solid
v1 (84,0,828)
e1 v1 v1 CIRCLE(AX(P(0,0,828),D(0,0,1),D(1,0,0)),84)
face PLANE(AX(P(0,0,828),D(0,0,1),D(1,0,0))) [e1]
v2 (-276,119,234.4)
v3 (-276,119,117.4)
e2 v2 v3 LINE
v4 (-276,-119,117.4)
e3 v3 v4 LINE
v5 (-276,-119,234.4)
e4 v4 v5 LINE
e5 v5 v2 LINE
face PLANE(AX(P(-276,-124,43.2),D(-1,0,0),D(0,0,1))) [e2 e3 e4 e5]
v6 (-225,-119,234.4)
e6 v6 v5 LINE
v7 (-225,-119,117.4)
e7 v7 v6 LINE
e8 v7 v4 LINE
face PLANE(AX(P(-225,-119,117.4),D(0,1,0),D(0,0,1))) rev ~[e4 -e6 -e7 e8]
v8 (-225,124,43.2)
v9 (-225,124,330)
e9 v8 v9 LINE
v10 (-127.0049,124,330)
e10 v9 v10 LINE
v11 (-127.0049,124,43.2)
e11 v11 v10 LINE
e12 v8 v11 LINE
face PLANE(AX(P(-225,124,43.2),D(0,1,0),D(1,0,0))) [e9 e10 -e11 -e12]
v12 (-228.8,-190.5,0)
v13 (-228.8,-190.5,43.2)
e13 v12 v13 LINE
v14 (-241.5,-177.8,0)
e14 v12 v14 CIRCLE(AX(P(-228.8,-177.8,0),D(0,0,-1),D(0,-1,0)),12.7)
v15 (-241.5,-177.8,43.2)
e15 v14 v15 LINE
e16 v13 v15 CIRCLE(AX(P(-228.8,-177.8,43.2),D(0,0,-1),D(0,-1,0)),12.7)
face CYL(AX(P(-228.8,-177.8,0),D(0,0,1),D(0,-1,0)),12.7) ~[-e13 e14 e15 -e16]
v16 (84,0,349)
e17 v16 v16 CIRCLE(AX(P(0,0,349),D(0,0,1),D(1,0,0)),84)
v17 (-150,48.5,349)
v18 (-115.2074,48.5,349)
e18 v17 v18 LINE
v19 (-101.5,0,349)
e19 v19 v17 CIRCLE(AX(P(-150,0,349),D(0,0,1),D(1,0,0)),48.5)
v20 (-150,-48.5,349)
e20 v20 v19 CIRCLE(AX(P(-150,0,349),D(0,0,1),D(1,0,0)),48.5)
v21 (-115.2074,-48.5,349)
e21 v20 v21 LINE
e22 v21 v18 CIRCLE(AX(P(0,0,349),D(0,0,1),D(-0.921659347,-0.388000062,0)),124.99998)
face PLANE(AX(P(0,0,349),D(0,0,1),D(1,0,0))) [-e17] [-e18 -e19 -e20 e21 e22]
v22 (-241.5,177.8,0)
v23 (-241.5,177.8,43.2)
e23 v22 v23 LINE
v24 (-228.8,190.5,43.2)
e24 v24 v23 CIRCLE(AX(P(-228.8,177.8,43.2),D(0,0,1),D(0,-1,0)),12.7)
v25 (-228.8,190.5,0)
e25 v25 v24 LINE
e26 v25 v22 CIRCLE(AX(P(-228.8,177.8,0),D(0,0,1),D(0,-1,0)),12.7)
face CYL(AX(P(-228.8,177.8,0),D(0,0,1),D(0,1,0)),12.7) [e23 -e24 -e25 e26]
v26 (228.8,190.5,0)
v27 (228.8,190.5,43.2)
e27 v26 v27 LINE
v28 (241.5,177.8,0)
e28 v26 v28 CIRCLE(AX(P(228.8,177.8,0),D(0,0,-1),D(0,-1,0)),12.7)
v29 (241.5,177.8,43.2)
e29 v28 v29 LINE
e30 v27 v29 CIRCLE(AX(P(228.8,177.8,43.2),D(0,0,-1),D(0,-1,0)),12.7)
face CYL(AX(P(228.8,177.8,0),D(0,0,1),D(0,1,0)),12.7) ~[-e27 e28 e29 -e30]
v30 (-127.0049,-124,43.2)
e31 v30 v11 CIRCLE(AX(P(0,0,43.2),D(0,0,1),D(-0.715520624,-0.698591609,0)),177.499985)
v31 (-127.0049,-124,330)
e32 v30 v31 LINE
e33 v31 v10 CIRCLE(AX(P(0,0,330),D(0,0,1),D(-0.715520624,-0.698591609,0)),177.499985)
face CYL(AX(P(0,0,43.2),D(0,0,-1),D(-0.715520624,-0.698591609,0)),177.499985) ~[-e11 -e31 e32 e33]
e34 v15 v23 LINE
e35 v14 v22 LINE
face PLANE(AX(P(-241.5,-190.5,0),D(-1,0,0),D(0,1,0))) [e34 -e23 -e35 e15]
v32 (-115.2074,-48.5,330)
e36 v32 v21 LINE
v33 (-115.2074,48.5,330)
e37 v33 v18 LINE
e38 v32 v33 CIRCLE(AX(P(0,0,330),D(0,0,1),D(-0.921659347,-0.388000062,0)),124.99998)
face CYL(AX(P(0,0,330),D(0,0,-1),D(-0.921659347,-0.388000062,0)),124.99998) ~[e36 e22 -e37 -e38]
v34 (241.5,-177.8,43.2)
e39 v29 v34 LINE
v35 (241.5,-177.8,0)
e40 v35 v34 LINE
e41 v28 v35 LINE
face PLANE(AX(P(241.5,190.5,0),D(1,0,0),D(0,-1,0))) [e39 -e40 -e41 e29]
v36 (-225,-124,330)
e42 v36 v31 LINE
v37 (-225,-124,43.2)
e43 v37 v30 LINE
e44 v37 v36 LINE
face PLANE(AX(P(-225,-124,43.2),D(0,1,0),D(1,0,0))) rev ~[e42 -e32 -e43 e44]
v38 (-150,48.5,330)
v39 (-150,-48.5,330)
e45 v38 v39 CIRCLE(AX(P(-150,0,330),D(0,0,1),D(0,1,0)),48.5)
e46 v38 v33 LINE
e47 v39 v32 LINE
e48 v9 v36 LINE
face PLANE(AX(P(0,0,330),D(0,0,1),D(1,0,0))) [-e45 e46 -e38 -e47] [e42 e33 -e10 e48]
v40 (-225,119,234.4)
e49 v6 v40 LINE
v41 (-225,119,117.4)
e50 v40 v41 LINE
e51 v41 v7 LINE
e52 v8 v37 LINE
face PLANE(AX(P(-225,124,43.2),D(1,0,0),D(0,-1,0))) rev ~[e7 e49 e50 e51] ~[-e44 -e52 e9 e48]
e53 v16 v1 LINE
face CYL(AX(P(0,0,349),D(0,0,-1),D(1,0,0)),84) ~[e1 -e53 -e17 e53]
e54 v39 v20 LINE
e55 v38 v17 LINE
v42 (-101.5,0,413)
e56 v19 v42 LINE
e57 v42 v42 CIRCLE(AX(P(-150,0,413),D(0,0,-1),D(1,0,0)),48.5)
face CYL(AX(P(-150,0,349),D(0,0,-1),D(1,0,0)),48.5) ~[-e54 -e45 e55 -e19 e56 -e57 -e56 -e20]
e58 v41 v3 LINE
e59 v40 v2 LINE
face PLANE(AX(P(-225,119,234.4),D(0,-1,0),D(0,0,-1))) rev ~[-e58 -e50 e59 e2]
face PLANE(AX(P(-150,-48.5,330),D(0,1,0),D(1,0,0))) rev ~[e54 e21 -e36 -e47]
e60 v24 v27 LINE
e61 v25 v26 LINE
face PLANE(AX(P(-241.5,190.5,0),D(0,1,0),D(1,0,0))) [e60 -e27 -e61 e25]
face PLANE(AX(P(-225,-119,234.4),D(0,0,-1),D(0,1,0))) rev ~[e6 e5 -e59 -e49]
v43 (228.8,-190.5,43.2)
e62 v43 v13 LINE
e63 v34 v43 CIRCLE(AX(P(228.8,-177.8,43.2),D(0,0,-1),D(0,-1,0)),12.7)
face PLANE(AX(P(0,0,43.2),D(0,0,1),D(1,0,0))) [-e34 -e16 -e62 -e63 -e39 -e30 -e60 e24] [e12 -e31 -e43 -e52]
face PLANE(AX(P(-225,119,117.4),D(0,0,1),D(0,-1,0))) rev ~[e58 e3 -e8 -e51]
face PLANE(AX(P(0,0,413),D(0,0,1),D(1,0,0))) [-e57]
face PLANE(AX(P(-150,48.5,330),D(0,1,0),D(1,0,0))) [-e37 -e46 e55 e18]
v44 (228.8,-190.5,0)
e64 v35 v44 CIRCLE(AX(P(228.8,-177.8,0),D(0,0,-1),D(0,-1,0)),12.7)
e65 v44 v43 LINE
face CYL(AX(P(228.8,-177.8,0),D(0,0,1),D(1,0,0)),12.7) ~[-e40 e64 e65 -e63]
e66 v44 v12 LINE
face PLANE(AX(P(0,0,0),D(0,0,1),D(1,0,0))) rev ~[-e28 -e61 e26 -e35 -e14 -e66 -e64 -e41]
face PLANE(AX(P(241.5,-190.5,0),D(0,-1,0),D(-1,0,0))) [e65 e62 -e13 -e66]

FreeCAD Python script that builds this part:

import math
import FreeCAD as App
import Part
import Sketcher
from FreeCAD import Vector


def edges_at(feature, points):
    """Names of the edges that pass closest to the given points."""
    edges = feature.Shape.Edges
    near = lambda p: min(range(len(edges)), key=lambda i: edges[i].distToShape(Part.Vertex(*p))[0])
    return sorted({f"Edge{near(p) + 1}" for p in points})


def add_polygon(sketch, points):
    """Adds a closed chain of lines whose ends are joined by coincident constraints."""
    first, n = sketch.GeometryCount, len(points)
    for a, b in zip(points, points[1:] + points[:1]):
        sketch.addGeometry(Part.LineSegment(App.Vector(*a, 0), App.Vector(*b, 0)), False)
    for i in range(n):
        sketch.addConstraint(Sketcher.Constraint("Coincident", first + i, 2, first + (i + 1) % n, 1))

doc = App.newDocument("Part")
params = doc.addObject("Spreadsheet::Sheet", "Params")
for row, (alias, value) in enumerate([
    ("sketch1_width", "483 mm"),
    ("sketch1_height", "381 mm"),
    ("pad1_length", "43.2 mm"),
    ("fillet_radius", "12.7 mm"),
    ("sketch2_radius", "177.5 mm"),
    ("sketch2_height", "248 mm"),
    ("pad2_length", "286.8 mm"),
    ("sketch3_width", "238 mm"),
    ("sketch3_height", "117 mm"),
    ("pad3_length", "51 mm"),
    ("sketch4_radius", "125 mm"),
    ("sketch4_radius2", "48.5 mm"),
    ("pad4_length", "19 mm"),
    ("sketch5_diameter", "97 mm"),
    ("pad5_length", "64 mm"),
    ("sketch6_diameter", "168 mm"),
    ("pad6_length", "479 mm"),
], start=1):
    params.set(f"A{row}", alias)
    params.set(f"B{row}", "=" + value)
    params.setAlias(f"B{row}", alias)

body = doc.addObject("PartDesign::Body", "Body")

sketch1 = body.newObject("Sketcher::SketchObject", "Sketch")
sketch1.AttachmentSupport = (doc.getObject("XY_Plane"), [""])
sketch1.MapMode = "FlatFace"
add_polygon(sketch1, [(242, 190), (-242, 190), (-242, -190), (242, -190)])
sketch1.addConstraint([
    Sketcher.Constraint("Horizontal", 0),
    Sketcher.Constraint("Vertical", 1),
    Sketcher.Constraint("Horizontal", 2),
    Sketcher.Constraint("Vertical", 3),
    Sketcher.Constraint("Symmetric", 0, 2, 2, 2, -1, 1),
    Sketcher.Constraint("DistanceX", 0, 2, 0, 1, 483.0),
    Sketcher.Constraint("DistanceY", 1, 2, 1, 1, 381.0),
])
sketch1.setExpression("Constraints[9]", "Params.sketch1_width")
sketch1.setExpression("Constraints[10]", "Params.sketch1_height")
pad1 = body.newObject("PartDesign::Pad", "Pad")
pad1.Profile = sketch1
pad1.setExpression("Length", "Params.pad1_length")
doc.recompute()

fillet = body.newObject("PartDesign::Fillet", "Fillet")
fillet.Base = (pad1, edges_at(pad1, [
    (241.5, 190.5, 21.6),
    (-241.5, 190.5, 21.6),
    (241.5, -190.5, 21.6),
    (-241.5, -190.5, 21.6),
]))
fillet.setExpression("Radius", "Params.fillet_radius")

sketch2 = body.newObject("Sketcher::SketchObject", "Sketch001")
sketch2.AttachmentSupport = (doc.getObject("XY_Plane"), [""])
sketch2.MapMode = "FlatFace"
sketch2.AttachmentOffset = App.Placement(Vector(0, 0, 43.2), App.Rotation())
sketch2.addGeometry([
    Part.LineSegment(Vector(-127, 124, 0), Vector(-225, 124, 0)),
    Part.LineSegment(Vector(-225, 124, 0), Vector(-225, -124, 0)),
    Part.LineSegment(Vector(-225, -124, 0), Vector(-127, -124, 0)),
    Part.ArcOfCircle(Part.Circle(Vector(0, 0, 0), Vector(0, 0, 1), 177), math.radians(-136), math.radians(136)),
], False)
sketch2.addConstraint([
    Sketcher.Constraint("Coincident", 0, 2, 1, 1),
    Sketcher.Constraint("Coincident", 1, 2, 2, 1),
    Sketcher.Constraint("Coincident", 2, 2, 3, 1),
    Sketcher.Constraint("Coincident", 3, 2, 0, 1),
    Sketcher.Constraint("Horizontal", 0),
    Sketcher.Constraint("Vertical", 1),
    Sketcher.Constraint("Horizontal", 2),
    Sketcher.Constraint("Coincident", 3, 3, -1, 1),
    Sketcher.Constraint("Vertical", 2, 2, 3, 2),
    Sketcher.Constraint("Radius", 3, 177.5),
    Sketcher.Constraint("DistanceY", 1, 2, 1, 1, 248.0),
    Sketcher.Constraint("DistanceX", 0, 2, -1, 1, 225.0),
])
sketch2.setExpression("Constraints[9]", "Params.sketch2_radius")
sketch2.setExpression("Constraints[10]", "Params.sketch2_height")
pad2 = body.newObject("PartDesign::Pad", "Pad001")
pad2.Profile = sketch2
pad2.setExpression("Length", "Params.pad2_length")

sketch3 = body.newObject("Sketcher::SketchObject", "Sketch002")
sketch3.AttachmentSupport = (doc.getObject("YZ_Plane"), [""])
sketch3.MapMode = "FlatFace"
sketch3.AttachmentOffset = App.Placement(Vector(0, 0, -225), App.Rotation())
add_polygon(sketch3, [(-119, 234), (119, 234), (119, 117), (-119, 117)])
sketch3.addConstraint([
    Sketcher.Constraint("Horizontal", 0),
    Sketcher.Constraint("Vertical", 1),
    Sketcher.Constraint("Horizontal", 2),
    Sketcher.Constraint("Vertical", 3),
    Sketcher.Constraint("DistanceX", 0, 1, 0, 2, 238.0),
    Sketcher.Constraint("DistanceY", 1, 2, 1, 1, 117.0),
    Sketcher.Constraint("DistanceX", -1, 1, 0, 2, 119.0),
    Sketcher.Constraint("DistanceY", -1, 1, 0, 2, 234.4),
])
sketch3.setExpression("Constraints[8]", "Params.sketch3_width")
sketch3.setExpression("Constraints[9]", "Params.sketch3_height")
pad3 = body.newObject("PartDesign::Pad", "Pad002")
pad3.Profile = sketch3
pad3.setExpression("Length", "Params.pad3_length")
pad3.Reversed = True

sketch4 = body.newObject("Sketcher::SketchObject", "Sketch003")
sketch4.AttachmentSupport = (doc.getObject("XY_Plane"), [""])
sketch4.MapMode = "FlatFace"
sketch4.AttachmentOffset = App.Placement(Vector(0, 0, 330), App.Rotation())
sketch4.addGeometry([
    Part.LineSegment(Vector(-115, 48, 0), Vector(-150, 48, 0)),
    Part.ArcOfCircle(Part.Circle(Vector(-150, 0, 0), Vector(0, 0, 1), 48), math.radians(90), math.radians(270)),
    Part.LineSegment(Vector(-150, -48, 0), Vector(-115, -48, 0)),
    Part.ArcOfCircle(Part.Circle(Vector(0, 0, 0), Vector(0, 0, 1), 125), math.radians(-157), math.radians(157)),
], False)
sketch4.addConstraint([
    Sketcher.Constraint("Tangent", 0, 2, 1, 1),
    Sketcher.Constraint("Tangent", 1, 2, 2, 1),
    Sketcher.Constraint("Coincident", 2, 2, 3, 1),
    Sketcher.Constraint("Coincident", 3, 2, 0, 1),
    Sketcher.Constraint("Horizontal", 0),
    Sketcher.Constraint("Horizontal", 2),
    Sketcher.Constraint("Coincident", 3, 3, -1, 1),
    Sketcher.Constraint("PointOnObject", 1, 3, -1),
    Sketcher.Constraint("Radius", 3, 125.0),
    Sketcher.Constraint("Radius", 1, 48.5),
    Sketcher.Constraint("DistanceX", 1, 3, -1, 1, 150.0),
])
sketch4.setExpression("Constraints[8]", "Params.sketch4_radius")
sketch4.setExpression("Constraints[9]", "Params.sketch4_radius2")
pad4 = body.newObject("PartDesign::Pad", "Pad003")
pad4.Profile = sketch4
pad4.setExpression("Length", "Params.pad4_length")

sketch5 = body.newObject("Sketcher::SketchObject", "Sketch004")
sketch5.AttachmentSupport = (doc.getObject("XY_Plane"), [""])
sketch5.MapMode = "FlatFace"
sketch5.AttachmentOffset = App.Placement(Vector(0, 0, 349), App.Rotation())
sketch5.addGeometry(Part.Circle(Vector(-150, 0, 0), Vector(0, 0, 1), 48), False)
sketch5.addConstraint([
    Sketcher.Constraint("PointOnObject", 0, 3, -1),
    Sketcher.Constraint("Diameter", 0, 97.0),
    Sketcher.Constraint("DistanceX", 0, 3, -1, 1, 150.0),
])
sketch5.setExpression("Constraints[1]", "Params.sketch5_diameter")
pad5 = body.newObject("PartDesign::Pad", "Pad004")
pad5.Profile = sketch5
pad5.setExpression("Length", "Params.pad5_length")

sketch6 = body.newObject("Sketcher::SketchObject", "Sketch005")
sketch6.AttachmentSupport = (doc.getObject("XY_Plane"), [""])
sketch6.MapMode = "FlatFace"
sketch6.AttachmentOffset = App.Placement(Vector(0, 0, 349), App.Rotation())
sketch6.addGeometry(Part.Circle(Vector(0, 0, 0), Vector(0, 0, 1), 84), False)
sketch6.addConstraint([
    Sketcher.Constraint("Coincident", 0, 3, -1, 1),
    Sketcher.Constraint("Diameter", 0, 168.0),
])
sketch6.setExpression("Constraints[1]", "Params.sketch6_diameter")
pad6 = body.newObject("PartDesign::Pad", "Pad005")
pad6.Profile = sketch6
pad6.setExpression("Length", "Params.pad6_length")

doc.recompute()
